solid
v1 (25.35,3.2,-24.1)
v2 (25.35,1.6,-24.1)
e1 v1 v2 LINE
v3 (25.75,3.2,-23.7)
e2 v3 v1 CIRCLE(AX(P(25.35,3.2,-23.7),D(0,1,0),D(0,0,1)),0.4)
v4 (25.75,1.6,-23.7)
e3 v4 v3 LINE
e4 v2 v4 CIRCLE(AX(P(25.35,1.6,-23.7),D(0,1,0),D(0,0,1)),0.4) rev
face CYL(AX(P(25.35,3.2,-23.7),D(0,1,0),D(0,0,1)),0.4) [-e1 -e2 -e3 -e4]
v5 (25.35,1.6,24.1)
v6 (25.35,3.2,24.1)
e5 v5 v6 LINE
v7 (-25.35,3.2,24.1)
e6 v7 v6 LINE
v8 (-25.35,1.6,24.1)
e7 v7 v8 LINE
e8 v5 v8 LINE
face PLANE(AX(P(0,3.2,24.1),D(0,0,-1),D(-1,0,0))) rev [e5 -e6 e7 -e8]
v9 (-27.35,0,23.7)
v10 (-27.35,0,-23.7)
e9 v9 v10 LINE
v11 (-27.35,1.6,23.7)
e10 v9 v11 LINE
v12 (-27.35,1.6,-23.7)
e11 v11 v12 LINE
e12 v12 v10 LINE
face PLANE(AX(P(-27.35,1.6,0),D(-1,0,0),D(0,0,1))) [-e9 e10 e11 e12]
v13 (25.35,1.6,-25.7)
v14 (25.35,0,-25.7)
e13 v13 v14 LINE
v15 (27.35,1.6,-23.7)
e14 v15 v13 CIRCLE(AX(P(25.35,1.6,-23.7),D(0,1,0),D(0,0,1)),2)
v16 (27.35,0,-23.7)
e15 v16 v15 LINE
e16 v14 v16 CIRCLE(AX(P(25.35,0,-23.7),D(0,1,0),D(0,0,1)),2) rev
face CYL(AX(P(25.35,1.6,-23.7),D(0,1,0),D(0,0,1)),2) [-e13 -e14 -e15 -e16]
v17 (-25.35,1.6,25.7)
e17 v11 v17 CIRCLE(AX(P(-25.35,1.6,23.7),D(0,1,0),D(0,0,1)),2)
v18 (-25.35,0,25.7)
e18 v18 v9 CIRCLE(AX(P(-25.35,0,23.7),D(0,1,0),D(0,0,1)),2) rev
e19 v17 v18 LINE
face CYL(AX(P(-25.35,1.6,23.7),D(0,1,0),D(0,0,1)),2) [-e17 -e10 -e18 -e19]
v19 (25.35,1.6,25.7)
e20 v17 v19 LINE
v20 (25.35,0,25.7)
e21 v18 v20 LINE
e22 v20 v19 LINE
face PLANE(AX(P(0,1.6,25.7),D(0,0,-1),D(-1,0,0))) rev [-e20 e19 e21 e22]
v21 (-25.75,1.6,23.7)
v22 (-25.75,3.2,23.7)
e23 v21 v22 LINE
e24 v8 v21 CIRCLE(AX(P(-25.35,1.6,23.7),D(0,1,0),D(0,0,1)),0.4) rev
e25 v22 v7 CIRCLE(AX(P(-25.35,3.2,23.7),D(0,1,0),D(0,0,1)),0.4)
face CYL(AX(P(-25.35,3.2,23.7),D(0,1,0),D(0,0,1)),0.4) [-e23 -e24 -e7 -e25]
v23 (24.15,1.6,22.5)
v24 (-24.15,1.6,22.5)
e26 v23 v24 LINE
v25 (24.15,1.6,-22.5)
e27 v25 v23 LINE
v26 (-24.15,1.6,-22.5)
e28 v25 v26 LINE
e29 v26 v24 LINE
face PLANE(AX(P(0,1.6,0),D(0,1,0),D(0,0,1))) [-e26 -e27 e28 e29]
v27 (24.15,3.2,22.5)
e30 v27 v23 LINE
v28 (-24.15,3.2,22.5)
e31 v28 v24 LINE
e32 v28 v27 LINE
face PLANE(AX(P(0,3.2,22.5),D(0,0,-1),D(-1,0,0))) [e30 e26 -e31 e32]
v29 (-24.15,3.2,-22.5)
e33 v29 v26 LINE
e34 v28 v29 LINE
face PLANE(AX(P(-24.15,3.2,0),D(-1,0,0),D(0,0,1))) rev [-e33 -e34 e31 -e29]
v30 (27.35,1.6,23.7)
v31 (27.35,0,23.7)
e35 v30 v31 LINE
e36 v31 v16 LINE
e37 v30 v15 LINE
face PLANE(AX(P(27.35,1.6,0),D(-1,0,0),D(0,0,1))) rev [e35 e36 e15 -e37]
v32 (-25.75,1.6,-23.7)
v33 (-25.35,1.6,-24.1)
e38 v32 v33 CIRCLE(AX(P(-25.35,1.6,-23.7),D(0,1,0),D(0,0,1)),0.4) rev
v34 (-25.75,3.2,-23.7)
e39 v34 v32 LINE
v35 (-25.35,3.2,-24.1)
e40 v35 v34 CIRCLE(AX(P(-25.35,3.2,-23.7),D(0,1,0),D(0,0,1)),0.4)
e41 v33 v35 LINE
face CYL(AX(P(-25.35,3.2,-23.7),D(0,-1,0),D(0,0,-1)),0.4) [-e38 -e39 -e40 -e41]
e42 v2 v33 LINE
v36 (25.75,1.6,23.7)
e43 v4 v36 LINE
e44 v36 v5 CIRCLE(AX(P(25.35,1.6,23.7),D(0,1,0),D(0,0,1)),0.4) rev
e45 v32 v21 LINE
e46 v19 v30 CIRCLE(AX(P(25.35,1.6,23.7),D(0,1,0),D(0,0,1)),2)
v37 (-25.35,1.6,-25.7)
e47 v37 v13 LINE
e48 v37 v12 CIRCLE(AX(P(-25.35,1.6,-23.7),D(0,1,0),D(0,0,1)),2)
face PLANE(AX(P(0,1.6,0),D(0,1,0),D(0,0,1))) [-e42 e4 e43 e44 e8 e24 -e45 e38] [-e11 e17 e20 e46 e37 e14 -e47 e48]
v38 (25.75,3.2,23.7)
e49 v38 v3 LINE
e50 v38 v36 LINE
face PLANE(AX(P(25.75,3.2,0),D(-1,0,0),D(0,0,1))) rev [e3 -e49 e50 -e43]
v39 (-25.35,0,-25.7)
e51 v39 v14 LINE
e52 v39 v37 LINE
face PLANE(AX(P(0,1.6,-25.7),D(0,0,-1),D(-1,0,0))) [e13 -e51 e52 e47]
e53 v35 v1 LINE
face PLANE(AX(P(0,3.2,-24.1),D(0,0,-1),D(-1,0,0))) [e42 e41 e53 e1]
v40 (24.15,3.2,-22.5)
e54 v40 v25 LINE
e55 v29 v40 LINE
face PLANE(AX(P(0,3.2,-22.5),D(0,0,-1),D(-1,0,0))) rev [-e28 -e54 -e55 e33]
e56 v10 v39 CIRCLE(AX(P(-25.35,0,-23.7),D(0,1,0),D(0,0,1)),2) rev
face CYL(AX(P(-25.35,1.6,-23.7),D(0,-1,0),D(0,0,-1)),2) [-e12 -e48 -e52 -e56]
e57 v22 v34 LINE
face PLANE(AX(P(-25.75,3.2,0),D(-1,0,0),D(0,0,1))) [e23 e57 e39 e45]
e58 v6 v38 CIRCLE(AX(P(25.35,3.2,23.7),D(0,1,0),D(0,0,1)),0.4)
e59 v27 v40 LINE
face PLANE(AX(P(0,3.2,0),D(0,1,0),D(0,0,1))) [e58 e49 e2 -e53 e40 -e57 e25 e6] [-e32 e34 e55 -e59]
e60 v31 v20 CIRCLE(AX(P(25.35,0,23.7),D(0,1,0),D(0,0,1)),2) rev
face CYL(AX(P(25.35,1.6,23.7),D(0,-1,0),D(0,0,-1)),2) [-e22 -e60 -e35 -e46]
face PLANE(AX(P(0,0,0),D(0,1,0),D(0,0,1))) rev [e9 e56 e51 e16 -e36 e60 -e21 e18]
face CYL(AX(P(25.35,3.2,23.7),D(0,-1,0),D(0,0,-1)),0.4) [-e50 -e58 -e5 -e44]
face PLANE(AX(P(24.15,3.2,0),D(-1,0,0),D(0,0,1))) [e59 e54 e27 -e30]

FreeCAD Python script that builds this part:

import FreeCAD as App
import Part
import Sketcher
from FreeCAD import Vector
Q = App.Units.Quantity


def edges_at(feature, points):
    """Names of the edges that pass closest to the given points."""
    edges = feature.Shape.Edges
    near = lambda p: min(range(len(edges)), key=lambda i: edges[i].distToShape(Part.Vertex(*p))[0])
    return sorted({f"Edge{near(p) + 1}" for p in points})

doc = App.newDocument("Part")
body = doc.addObject("PartDesign::Body", "Body")

# Sketch on XZ plane
sketch1 = body.newObject("Sketcher::SketchObject", "Sketch")
sketch1.AttachmentSupport = (doc.getObject("XZ_Plane"), [""])
sketch1.MapMode = "FlatFace"
sketch1.addGeometry([
    Part.LineSegment(Vector(-27.35, -25.7, 0), Vector(-27.35, 25.7, 0)),
    Part.LineSegment(Vector(-27.35, 25.7, 0), Vector(27.35, 25.7, 0)),
    Part.LineSegment(Vector(27.35, 25.7, 0), Vector(27.35, -25.7, 0)),
    Part.LineSegment(Vector(27.35, -25.7, 0), Vector(-27.35, -25.7, 0)),
], False)
sketch1.addConstraint([
    Sketcher.Constraint("Coincident", 0, 2, 1, 1),
    Sketcher.Constraint("Coincident", 1, 2, 2, 1),
    Sketcher.Constraint("Coincident", 2, 2, 3, 1),
    Sketcher.Constraint("Coincident", 3, 2, 0, 1),
    Sketcher.Constraint("Vertical", 0),
    Sketcher.Constraint("Horizontal", 1),
    Sketcher.Constraint("Vertical", 2),
    Sketcher.Constraint("Horizontal", 3),
    Sketcher.Constraint("Symmetric", 0, 2, 2, 2, -1, 1),
    Sketcher.Constraint("DistanceX", 1, 1, 1, 2, Q("54.7 mm")),
    Sketcher.Constraint("DistanceY", 0, 1, 0, 2, Q("51.4 mm")),
])
pad1 = body.newObject("PartDesign::Pad", "Pad")
pad1.Profile = sketch1
pad1.Length = 1.6
pad1.Reversed = True

# Sketch on XZ plane
sketch2 = body.newObject("Sketcher::SketchObject", "Sketch001")
sketch2.AttachmentSupport = (doc.getObject("XZ_Plane"), [""])
sketch2.MapMode = "FlatFace"
sketch2.addGeometry([
    Part.LineSegment(Vector(-25.75, -24.1, 0), Vector(-25.75, 24.1, 0)),  # 0
    Part.LineSegment(Vector(-25.75, 24.1, 0), Vector(25.75, 24.1, 0)),  # 1
    Part.LineSegment(Vector(25.75, 24.1, 0), Vector(25.75, -24.1, 0)),  # 2
    Part.LineSegment(Vector(25.75, -24.1, 0), Vector(-25.75, -24.1, 0)),  # 3
    Part.LineSegment(Vector(24.15, 22.5, 0), Vector(-24.15, 22.5, 0)),  # 4
    Part.LineSegment(Vector(-24.15, 22.5, 0), Vector(-24.15, -22.5, 0)),  # 5
    Part.LineSegment(Vector(-24.15, -22.5, 0), Vector(24.15, -22.5, 0)),  # 6
    Part.LineSegment(Vector(24.15, -22.5, 0), Vector(24.15, 22.5, 0)),  # 7
], False)
sketch2.addConstraint([
    Sketcher.Constraint("Coincident", 0, 2, 1, 1),
    Sketcher.Constraint("Coincident", 1, 2, 2, 1),
    Sketcher.Constraint("Coincident", 2, 2, 3, 1),
    Sketcher.Constraint("Coincident", 3, 2, 0, 1),
    Sketcher.Constraint("Coincident", 4, 2, 5, 1),
    Sketcher.Constraint("Coincident", 5, 2, 6, 1),
    Sketcher.Constraint("Coincident", 6, 2, 7, 1),
    Sketcher.Constraint("Coincident", 7, 2, 4, 1),
    Sketcher.Constraint("Vertical", 0),
    Sketcher.Constraint("Horizontal", 1),
    Sketcher.Constraint("Vertical", 2),
    Sketcher.Constraint("Horizontal", 3),
    Sketcher.Constraint("Horizontal", 4),
    Sketcher.Constraint("Vertical", 5),
    Sketcher.Constraint("Horizontal", 6),
    Sketcher.Constraint("Vertical", 7),
    Sketcher.Constraint("Symmetric", 0, 2, 2, 2, -1, 1),
    Sketcher.Constraint("Symmetric", 4, 2, 6, 2, -1, 1),
    Sketcher.Constraint("DistanceY", 5, 2, 5, 1, Q("45 mm")),
    Sketcher.Constraint("DistanceX", 1, 1, 1, 2, Q("51.5 mm")),
    Sketcher.Constraint("DistanceX", 4, 2, 4, 1, Q("48.3 mm")),
    Sketcher.Constraint("DistanceY", 0, 1, 0, 2, Q("48.2 mm")),
])
pad2 = body.newObject("PartDesign::Pad", "Pad001")
pad2.Profile = sketch2
pad2.Length = 3.2
pad2.Reversed = True
doc.recompute()

fillet = body.newObject("PartDesign::Fillet", "Fillet")
fillet.Base = (pad2, edges_at(pad2, [
    (-27.35, 0.8, 25.7),
    (-27.35, 0.8, -25.7),
    (27.35, 0.8, -25.7),
    (27.35, 0.8, 25.7),
]))
fillet.Radius = 2
doc.recompute()

fillet2 = body.newObject("PartDesign::Fillet", "Fillet001")
fillet2.Base = (fillet, edges_at(fillet, [
    (-25.75, 2.4, -24.1),
    (-25.75, 2.4, 24.1),
    (25.75, 2.4, 24.1),
    (25.75, 2.4, -24.1),
]))
fillet2.Radius = 0.4

doc.recompute()
